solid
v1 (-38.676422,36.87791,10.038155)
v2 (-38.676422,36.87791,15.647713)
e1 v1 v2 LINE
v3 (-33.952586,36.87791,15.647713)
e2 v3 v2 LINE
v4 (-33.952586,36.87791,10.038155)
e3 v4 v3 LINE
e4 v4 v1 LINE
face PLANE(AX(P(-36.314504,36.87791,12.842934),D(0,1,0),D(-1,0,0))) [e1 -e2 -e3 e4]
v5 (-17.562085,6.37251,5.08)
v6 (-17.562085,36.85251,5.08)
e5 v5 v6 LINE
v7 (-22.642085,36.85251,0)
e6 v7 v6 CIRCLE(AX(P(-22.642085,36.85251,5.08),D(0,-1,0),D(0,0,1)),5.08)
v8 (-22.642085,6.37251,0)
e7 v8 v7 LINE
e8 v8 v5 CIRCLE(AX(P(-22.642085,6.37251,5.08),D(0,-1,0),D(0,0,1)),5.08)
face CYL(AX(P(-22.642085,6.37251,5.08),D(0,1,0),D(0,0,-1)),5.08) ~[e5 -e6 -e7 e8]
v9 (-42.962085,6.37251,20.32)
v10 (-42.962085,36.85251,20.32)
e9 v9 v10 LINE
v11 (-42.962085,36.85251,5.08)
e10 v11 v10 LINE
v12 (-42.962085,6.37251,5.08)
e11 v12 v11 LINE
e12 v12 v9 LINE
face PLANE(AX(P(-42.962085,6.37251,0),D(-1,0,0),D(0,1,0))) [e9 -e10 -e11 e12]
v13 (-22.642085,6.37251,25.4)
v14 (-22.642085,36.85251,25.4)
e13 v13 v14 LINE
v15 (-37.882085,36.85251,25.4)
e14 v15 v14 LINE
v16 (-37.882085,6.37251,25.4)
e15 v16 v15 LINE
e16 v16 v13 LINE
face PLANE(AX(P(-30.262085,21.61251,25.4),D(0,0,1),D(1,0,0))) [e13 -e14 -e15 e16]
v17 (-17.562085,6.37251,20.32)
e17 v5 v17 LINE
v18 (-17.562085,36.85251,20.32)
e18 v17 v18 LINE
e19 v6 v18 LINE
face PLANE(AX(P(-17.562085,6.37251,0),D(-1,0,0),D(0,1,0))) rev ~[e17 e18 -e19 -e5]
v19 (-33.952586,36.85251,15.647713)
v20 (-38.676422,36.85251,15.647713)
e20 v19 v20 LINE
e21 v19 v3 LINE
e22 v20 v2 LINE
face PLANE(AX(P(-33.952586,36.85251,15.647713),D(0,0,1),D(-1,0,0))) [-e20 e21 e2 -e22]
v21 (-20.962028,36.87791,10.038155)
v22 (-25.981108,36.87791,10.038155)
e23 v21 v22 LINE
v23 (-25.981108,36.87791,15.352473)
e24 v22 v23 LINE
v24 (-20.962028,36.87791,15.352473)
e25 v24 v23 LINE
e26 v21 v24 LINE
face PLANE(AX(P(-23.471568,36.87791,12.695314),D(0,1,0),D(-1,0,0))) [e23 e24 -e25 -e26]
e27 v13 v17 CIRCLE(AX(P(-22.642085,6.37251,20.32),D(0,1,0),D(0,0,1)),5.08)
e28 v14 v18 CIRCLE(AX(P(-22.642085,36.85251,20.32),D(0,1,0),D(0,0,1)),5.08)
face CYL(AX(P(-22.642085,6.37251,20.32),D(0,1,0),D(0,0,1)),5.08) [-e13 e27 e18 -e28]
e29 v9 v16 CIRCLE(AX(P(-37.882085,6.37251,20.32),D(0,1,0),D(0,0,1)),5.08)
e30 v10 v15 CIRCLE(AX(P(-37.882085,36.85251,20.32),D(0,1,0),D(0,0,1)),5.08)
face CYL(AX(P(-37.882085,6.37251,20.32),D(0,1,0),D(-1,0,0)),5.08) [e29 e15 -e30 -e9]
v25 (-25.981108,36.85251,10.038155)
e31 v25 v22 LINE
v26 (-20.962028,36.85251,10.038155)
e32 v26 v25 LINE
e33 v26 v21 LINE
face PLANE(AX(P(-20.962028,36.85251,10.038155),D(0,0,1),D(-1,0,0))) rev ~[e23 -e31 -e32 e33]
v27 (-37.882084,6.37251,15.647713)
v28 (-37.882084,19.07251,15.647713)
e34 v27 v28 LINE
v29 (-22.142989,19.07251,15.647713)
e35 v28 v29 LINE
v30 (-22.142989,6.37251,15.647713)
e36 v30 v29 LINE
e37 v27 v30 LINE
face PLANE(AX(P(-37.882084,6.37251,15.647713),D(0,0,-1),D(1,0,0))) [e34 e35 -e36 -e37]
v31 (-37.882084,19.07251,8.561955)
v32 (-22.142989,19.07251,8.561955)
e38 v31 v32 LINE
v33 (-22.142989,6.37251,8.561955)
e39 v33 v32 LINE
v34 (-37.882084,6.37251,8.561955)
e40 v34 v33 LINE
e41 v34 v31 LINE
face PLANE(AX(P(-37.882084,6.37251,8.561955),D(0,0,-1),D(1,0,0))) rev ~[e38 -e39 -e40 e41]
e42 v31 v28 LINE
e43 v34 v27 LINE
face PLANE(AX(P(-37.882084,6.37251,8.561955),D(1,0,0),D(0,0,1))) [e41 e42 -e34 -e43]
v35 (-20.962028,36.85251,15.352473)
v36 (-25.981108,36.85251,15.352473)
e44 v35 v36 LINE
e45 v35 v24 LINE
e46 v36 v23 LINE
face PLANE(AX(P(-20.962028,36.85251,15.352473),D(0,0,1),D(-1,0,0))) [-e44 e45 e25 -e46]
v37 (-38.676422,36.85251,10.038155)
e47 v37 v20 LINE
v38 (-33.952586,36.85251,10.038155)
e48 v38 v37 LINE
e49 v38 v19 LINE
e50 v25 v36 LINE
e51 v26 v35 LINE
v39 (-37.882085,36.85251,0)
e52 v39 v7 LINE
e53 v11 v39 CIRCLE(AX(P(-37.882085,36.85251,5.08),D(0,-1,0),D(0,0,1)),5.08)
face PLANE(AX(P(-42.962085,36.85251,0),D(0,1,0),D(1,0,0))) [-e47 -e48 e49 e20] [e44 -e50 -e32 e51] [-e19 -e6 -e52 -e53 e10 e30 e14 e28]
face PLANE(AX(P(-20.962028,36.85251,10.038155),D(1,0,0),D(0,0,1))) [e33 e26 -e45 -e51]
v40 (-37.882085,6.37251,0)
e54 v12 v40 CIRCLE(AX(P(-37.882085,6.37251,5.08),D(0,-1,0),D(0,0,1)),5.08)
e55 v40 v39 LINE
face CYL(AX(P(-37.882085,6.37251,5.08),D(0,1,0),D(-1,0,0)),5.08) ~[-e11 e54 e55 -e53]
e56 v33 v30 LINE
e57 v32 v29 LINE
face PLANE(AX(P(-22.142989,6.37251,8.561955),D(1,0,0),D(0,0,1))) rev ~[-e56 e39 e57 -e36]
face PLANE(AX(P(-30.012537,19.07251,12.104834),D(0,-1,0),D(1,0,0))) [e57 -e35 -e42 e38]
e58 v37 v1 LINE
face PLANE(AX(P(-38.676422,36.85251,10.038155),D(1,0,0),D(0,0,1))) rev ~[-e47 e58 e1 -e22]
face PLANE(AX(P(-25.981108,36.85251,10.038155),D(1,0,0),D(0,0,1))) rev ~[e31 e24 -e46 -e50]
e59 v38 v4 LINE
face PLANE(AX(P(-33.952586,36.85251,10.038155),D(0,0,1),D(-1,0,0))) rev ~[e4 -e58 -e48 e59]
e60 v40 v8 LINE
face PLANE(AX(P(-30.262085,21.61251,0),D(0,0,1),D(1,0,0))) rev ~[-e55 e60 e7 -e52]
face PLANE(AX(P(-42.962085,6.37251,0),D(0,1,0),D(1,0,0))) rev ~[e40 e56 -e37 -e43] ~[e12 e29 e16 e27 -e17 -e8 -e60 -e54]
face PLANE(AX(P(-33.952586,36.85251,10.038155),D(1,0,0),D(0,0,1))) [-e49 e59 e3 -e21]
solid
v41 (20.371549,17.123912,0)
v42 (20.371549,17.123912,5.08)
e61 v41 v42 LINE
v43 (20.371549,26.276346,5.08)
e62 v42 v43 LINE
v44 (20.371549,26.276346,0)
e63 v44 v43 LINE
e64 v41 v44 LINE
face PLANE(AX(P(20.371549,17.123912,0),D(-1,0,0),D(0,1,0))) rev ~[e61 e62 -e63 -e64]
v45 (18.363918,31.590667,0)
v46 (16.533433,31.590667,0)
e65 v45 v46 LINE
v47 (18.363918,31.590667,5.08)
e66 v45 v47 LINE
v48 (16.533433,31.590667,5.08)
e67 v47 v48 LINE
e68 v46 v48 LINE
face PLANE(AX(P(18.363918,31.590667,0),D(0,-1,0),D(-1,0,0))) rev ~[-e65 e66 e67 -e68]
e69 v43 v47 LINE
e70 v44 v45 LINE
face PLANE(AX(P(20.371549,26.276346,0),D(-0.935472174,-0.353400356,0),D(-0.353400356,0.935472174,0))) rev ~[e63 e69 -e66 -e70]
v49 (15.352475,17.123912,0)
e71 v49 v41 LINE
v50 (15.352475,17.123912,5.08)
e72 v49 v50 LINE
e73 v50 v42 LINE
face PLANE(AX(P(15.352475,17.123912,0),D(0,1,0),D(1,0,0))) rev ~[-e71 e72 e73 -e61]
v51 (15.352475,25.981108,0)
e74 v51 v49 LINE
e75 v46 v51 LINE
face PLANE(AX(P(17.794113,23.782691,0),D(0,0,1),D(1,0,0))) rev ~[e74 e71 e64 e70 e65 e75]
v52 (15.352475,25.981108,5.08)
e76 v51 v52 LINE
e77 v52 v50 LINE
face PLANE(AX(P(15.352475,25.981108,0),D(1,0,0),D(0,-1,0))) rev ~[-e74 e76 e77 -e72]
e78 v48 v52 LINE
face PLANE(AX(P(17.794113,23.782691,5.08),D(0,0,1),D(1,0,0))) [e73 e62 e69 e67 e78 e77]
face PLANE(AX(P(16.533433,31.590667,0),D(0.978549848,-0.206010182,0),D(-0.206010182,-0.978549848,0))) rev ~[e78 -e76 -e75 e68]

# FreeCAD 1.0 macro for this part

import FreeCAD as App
import Part
import Sketcher
Q = App.Units.Quantity


def edges_at(feature, points):
    """Names of the edges that pass closest to the given points."""
    edges = feature.Shape.Edges
    near = lambda p: min(range(len(edges)), key=lambda i: edges[i].distToShape(Part.Vertex(*p))[0])
    return sorted({f"Edge{near(p) + 1}" for p in points})

doc = App.newDocument("Part")
body = doc.addObject("PartDesign::Body", "Body")

# Sketch on XY plane
sketch1 = body.newObject("Sketcher::SketchObject", "Sketch")
sketch1.AttachmentSupport = (doc.getObject("XY_Plane"), [""])
sketch1.MapMode = "FlatFace"
sketch1.addGeometry([
    Part.LineSegment(App.Vector(-42.962085, 36.85251, 0), App.Vector(-42.962085, 6.37251, 0)),
    Part.LineSegment(App.Vector(-42.962085, 6.37251, 0), App.Vector(-17.562085, 6.37251, 0)),
    Part.LineSegment(App.Vector(-17.562085, 6.37251, 0), App.Vector(-17.562085, 36.85251, 0)),
    Part.LineSegment(App.Vector(-17.562085, 36.85251, 0), App.Vector(-42.962085, 36.85251, 0)),
], False)
sketch1.addConstraint([
    Sketcher.Constraint("Coincident", 0, 2, 1, 1),
    Sketcher.Constraint("Coincident", 1, 2, 2, 1),
    Sketcher.Constraint("Coincident", 2, 2, 3, 1),
    Sketcher.Constraint("Coincident", 3, 2, 0, 1),
    Sketcher.Constraint("Vertical", 0),
    Sketcher.Constraint("Horizontal", 1),
    Sketcher.Constraint("Vertical", 2),
    Sketcher.Constraint("Horizontal", 3),
    Sketcher.Constraint("DistanceX", 1, 1, 1, 2, Q("1 in")),
    Sketcher.Constraint("DistanceY", 0, 2, 0, 1, Q("1.2 in")),
    Sketcher.Constraint("DistanceY", -1, 1, 0, 2, Q("6.37251 mm")),
    Sketcher.Constraint("DistanceX", 0, 2, -1, 1, Q("42.962085 mm")),
])
pad1 = body.newObject("PartDesign::Pad", "Pad")
pad1.Profile = sketch1
pad1.Length = Q("1 in")
doc.recompute()

fillet = body.newObject("PartDesign::Fillet", "Fillet")
fillet.Base = (pad1, edges_at(pad1, [(-42.962, 21.613, 25.4)]))
fillet.Radius = Q("0.2 in")
doc.recompute()

fillet2 = body.newObject("PartDesign::Fillet", "Fillet001")
fillet2.Base = (fillet, edges_at(fillet, [(-42.962, 21.613, 0), (-17.562, 21.613, 0), (-17.562, 21.613, 25.4)]))
fillet2.Radius = Q("0.2 in")

# Sketch on XZ plane
sketch2 = body.newObject("Sketcher::SketchObject", "Sketch001")
sketch2.AttachmentSupport = (doc.getObject("XZ_Plane"), [""])
sketch2.MapMode = "FlatFace"
sketch2.AttachmentOffset = App.Placement(App.Vector(0, 0, -6.37251), App.Rotation())
sketch2.addGeometry([
    Part.LineSegment(App.Vector(-37.882084, 15.647713, 0), App.Vector(-37.882084, 8.561955, 0)),
    Part.LineSegment(App.Vector(-37.882084, 8.561955, 0), App.Vector(-22.142989, 8.561955, 0)),
    Part.LineSegment(App.Vector(-22.142989, 8.561955, 0), App.Vector(-22.142989, 15.647713, 0)),
    Part.LineSegment(App.Vector(-22.142989, 15.647713, 0), App.Vector(-37.882084, 15.647713, 0)),
], False)
sketch2.addConstraint([
    Sketcher.Constraint("Coincident", 0, 2, 1, 1),
    Sketcher.Constraint("Coincident", 1, 2, 2, 1),
    Sketcher.Constraint("Coincident", 2, 2, 3, 1),
    Sketcher.Constraint("Coincident", 3, 2, 0, 1),
    Sketcher.Constraint("Vertical", 0),
    Sketcher.Constraint("Horizontal", 1),
    Sketcher.Constraint("Vertical", 2),
    Sketcher.Constraint("Horizontal", 3),
    Sketcher.Constraint("DistanceX", 1, 1, 1, 2, Q("15.739095 mm")),
    Sketcher.Constraint("DistanceY", 0, 2, 0, 1, Q("7.085757 mm")),
    Sketcher.Constraint("DistanceX", 1, 2, -1, 1, Q("22.142989 mm")),
    Sketcher.Constraint("DistanceY", -1, 1, 0, 2, Q("8.561955 mm")),
])
pocket1 = body.newObject("PartDesign::Pocket", "Pocket")
pocket1.Profile = sketch2
pocket1.Length = Q("0.5 in")

# Sketch on XZ plane
sketch3 = body.newObject("Sketcher::SketchObject", "Sketch002")
sketch3.AttachmentSupport = (doc.getObject("XZ_Plane"), [""])
sketch3.MapMode = "FlatFace"
sketch3.AttachmentOffset = App.Placement(App.Vector(0, 0, -36.85251), App.Rotation())
sketch3.addGeometry([
    Part.LineSegment(App.Vector(-33.952586, 15.647713, 0), App.Vector(-33.952586, 10.038155, 0)),  # 0
    Part.LineSegment(App.Vector(-33.952586, 10.038155, 0), App.Vector(-38.676422, 10.038155, 0)),  # 1
    Part.LineSegment(App.Vector(-38.676422, 10.038155, 0), App.Vector(-38.676422, 15.647713, 0)),  # 2
    Part.LineSegment(App.Vector(-38.676422, 15.647713, 0), App.Vector(-33.952586, 15.647713, 0)),  # 3
    Part.LineSegment(App.Vector(-20.962028, 15.352473, 0), App.Vector(-20.962028, 10.038155, 0)),  # 4
    Part.LineSegment(App.Vector(-20.962028, 10.038155, 0), App.Vector(-25.981108, 10.038155, 0)),  # 5
    Part.LineSegment(App.Vector(-25.981108, 10.038155, 0), App.Vector(-25.981108, 15.352473, 0)),  # 6
    Part.LineSegment(App.Vector(-25.981108, 15.352473, 0), App.Vector(-20.962028, 15.352473, 0)),  # 7
], False)
sketch3.addConstraint([
    Sketcher.Constraint("Coincident", 0, 2, 1, 1),
    Sketcher.Constraint("Coincident", 1, 2, 2, 1),
    Sketcher.Constraint("Coincident", 2, 2, 3, 1),
    Sketcher.Constraint("Coincident", 3, 2, 0, 1),
    Sketcher.Constraint("Coincident", 4, 2, 5, 1),
    Sketcher.Constraint("Coincident", 5, 2, 6, 1),
    Sketcher.Constraint("Coincident", 6, 2, 7, 1),
    Sketcher.Constraint("Coincident", 7, 2, 4, 1),
    Sketcher.Constraint("Vertical", 0),
    Sketcher.Constraint("Horizontal", 1),
    Sketcher.Constraint("Vertical", 2),
    Sketcher.Constraint("Horizontal", 3),
    Sketcher.Constraint("Vertical", 4),
    Sketcher.Constraint("Horizontal", 5),
    Sketcher.Constraint("Vertical", 6),
    Sketcher.Constraint("Horizontal", 7),
    Sketcher.Constraint("Horizontal", 1, 2, 4, 2),
    Sketcher.Constraint("DistanceX", 5, 2, 5, 1, Q("5.01908 mm")),
    Sketcher.Constraint("DistanceX", 1, 2, 1, 1, Q("4.723836 mm")),
    Sketcher.Constraint("DistanceY", 0, 2, 0, 1, Q("5.609558 mm")),
    Sketcher.Constraint("DistanceY", 4, 2, 4, 1, Q("5.314318 mm")),
    Sketcher.Constraint("DistanceX", 4, 2, -1, 1, Q("20.962028 mm")),
    Sketcher.Constraint("DistanceX", 0, 2, -1, 1, Q("33.952586 mm")),
    Sketcher.Constraint("DistanceY", -1, 1, 0, 2, Q("10.038155 mm")),
])
pad2 = body.newObject("PartDesign::Pad", "Pad001")
pad2.Profile = sketch3
pad2.Length = Q("0.001 in")
pad2.Reversed = True
body2 = doc.addObject("PartDesign::Body", "Body001")

# Sketch on XY plane
sketch4 = body2.newObject("Sketcher::SketchObject", "Sketch003")
sketch4.AttachmentSupport = (doc.getObject("XY_Plane001"), [""])
sketch4.MapMode = "FlatFace"
sketch4.addGeometry([
    Part.LineSegment(App.Vector(15.352475, 25.981108, 0), App.Vector(15.352475, 17.123912, 0)),  # 0
    Part.LineSegment(App.Vector(15.352475, 17.123912, 0), App.Vector(20.371549, 17.123912, 0)),  # 1
    Part.LineSegment(App.Vector(20.371549, 17.123912, 0), App.Vector(20.371549, 26.276346, 0)),  # 2
    Part.LineSegment(App.Vector(20.371549, 26.276346, 0), App.Vector(18.363918, 31.590667, 0)),  # 3
    Part.LineSegment(App.Vector(18.363918, 31.590667, 0), App.Vector(16.533433, 31.590667, 0)),  # 4
    Part.LineSegment(App.Vector(16.533433, 31.590667, 0), App.Vector(15.352475, 25.981108, 0)),  # 5
], False)
sketch4.addConstraint([
    Sketcher.Constraint("Coincident", 0, 2, 1, 1),
    Sketcher.Constraint("Coincident", 1, 2, 2, 1),
    Sketcher.Constraint("Coincident", 2, 2, 3, 1),
    Sketcher.Constraint("Coincident", 3, 2, 4, 1),
    Sketcher.Constraint("Coincident", 4, 2, 5, 1),
    Sketcher.Constraint("Coincident", 5, 2, 0, 1),
    Sketcher.Constraint("Vertical", 0),
    Sketcher.Constraint("Horizontal", 1),
    Sketcher.Constraint("Vertical", 2),
    Sketcher.Constraint("Horizontal", 4),
    Sketcher.Constraint("DistanceX", 1, 1, 1, 2, Q("5.019074 mm")),
    Sketcher.Constraint("DistanceX", 4, 2, 4, 1, Q("1.830485 mm")),
    Sketcher.Constraint("DistanceY", 0, 2, 0, 1, Q("8.857196 mm")),
    Sketcher.Constraint("DistanceY", 2, 1, 2, 2, Q("9.152434 mm")),
    Sketcher.Constraint("DistanceX", -1, 1, 1, 2, Q("20.371549 mm")),
    Sketcher.Constraint("DistanceX", -1, 1, 3, 2, Q("18.363918 mm")),
    Sketcher.Constraint("DistanceY", 2, 2, 3, 2, Q("5.314321 mm")),
    Sketcher.Constraint("DistanceY", -1, 1, 0, 2, Q("17.123912 mm")),
])
pad3 = body2.newObject("PartDesign::Pad", "Pad002")
pad3.Profile = sketch4
pad3.Length = Q("0.2 in")

doc.recompute()
